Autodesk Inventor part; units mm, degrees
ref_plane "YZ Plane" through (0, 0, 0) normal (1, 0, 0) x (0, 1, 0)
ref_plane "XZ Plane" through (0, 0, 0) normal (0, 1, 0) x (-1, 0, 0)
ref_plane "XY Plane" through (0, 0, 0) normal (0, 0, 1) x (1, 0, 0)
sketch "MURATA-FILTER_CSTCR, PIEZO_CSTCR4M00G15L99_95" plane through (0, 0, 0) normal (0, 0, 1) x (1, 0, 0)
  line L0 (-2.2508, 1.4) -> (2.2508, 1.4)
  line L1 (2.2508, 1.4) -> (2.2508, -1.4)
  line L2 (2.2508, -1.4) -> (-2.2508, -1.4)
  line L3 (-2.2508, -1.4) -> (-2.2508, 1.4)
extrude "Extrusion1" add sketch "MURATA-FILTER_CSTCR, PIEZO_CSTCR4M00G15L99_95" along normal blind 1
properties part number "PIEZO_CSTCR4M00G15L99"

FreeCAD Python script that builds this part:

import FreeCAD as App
import Part
import Sketcher
from FreeCAD import Vector
Q = App.Units.Quantity


def add_polygon(sketch, points):
    """Adds a closed chain of lines whose ends are joined by coincident constraints."""
    first, n = sketch.GeometryCount, len(points)
    for a, b in zip(points, points[1:] + points[:1]):
        sketch.addGeometry(Part.LineSegment(App.Vector(*a, 0), App.Vector(*b, 0)), False)
    for i in range(n):
        sketch.addConstraint(Sketcher.Constraint("Coincident", first + i, 2, first + (i + 1) % n, 1))

doc = App.newDocument("Part")
body = doc.addObject("PartDesign::Body", "Body")

# Sketch on XY plane
sketch1 = body.newObject("Sketcher::SketchObject", "Sketch")
sketch1.AttachmentSupport = (doc.getObject("XY_Plane"), [""])
sketch1.MapMode = "FlatFace"
add_polygon(sketch1, [(2.3, 1.4), (-2.3, 1.4), (-2.3, -1.4), (2.3, -1.4)])  # lines 0-3
sketch1.addConstraint([
    Sketcher.Constraint("Horizontal", 0),
    Sketcher.Constraint("Vertical", 1),
    Sketcher.Constraint("Horizontal", 2),
    Sketcher.Constraint("Vertical", 3),
    Sketcher.Constraint("Symmetric", 0, 2, 2, 2, -1, 1),
    Sketcher.Constraint("DistanceY", 1, 2, 1, 1, Q("2.8 mm")),
    Sketcher.Constraint("DistanceX", 0, 2, 0, 1, Q("4.5016 mm")),
])
pad1 = body.newObject("PartDesign::Pad", "Pad")
pad1.Profile = sketch1
pad1.Length = 1

doc.recompute()
